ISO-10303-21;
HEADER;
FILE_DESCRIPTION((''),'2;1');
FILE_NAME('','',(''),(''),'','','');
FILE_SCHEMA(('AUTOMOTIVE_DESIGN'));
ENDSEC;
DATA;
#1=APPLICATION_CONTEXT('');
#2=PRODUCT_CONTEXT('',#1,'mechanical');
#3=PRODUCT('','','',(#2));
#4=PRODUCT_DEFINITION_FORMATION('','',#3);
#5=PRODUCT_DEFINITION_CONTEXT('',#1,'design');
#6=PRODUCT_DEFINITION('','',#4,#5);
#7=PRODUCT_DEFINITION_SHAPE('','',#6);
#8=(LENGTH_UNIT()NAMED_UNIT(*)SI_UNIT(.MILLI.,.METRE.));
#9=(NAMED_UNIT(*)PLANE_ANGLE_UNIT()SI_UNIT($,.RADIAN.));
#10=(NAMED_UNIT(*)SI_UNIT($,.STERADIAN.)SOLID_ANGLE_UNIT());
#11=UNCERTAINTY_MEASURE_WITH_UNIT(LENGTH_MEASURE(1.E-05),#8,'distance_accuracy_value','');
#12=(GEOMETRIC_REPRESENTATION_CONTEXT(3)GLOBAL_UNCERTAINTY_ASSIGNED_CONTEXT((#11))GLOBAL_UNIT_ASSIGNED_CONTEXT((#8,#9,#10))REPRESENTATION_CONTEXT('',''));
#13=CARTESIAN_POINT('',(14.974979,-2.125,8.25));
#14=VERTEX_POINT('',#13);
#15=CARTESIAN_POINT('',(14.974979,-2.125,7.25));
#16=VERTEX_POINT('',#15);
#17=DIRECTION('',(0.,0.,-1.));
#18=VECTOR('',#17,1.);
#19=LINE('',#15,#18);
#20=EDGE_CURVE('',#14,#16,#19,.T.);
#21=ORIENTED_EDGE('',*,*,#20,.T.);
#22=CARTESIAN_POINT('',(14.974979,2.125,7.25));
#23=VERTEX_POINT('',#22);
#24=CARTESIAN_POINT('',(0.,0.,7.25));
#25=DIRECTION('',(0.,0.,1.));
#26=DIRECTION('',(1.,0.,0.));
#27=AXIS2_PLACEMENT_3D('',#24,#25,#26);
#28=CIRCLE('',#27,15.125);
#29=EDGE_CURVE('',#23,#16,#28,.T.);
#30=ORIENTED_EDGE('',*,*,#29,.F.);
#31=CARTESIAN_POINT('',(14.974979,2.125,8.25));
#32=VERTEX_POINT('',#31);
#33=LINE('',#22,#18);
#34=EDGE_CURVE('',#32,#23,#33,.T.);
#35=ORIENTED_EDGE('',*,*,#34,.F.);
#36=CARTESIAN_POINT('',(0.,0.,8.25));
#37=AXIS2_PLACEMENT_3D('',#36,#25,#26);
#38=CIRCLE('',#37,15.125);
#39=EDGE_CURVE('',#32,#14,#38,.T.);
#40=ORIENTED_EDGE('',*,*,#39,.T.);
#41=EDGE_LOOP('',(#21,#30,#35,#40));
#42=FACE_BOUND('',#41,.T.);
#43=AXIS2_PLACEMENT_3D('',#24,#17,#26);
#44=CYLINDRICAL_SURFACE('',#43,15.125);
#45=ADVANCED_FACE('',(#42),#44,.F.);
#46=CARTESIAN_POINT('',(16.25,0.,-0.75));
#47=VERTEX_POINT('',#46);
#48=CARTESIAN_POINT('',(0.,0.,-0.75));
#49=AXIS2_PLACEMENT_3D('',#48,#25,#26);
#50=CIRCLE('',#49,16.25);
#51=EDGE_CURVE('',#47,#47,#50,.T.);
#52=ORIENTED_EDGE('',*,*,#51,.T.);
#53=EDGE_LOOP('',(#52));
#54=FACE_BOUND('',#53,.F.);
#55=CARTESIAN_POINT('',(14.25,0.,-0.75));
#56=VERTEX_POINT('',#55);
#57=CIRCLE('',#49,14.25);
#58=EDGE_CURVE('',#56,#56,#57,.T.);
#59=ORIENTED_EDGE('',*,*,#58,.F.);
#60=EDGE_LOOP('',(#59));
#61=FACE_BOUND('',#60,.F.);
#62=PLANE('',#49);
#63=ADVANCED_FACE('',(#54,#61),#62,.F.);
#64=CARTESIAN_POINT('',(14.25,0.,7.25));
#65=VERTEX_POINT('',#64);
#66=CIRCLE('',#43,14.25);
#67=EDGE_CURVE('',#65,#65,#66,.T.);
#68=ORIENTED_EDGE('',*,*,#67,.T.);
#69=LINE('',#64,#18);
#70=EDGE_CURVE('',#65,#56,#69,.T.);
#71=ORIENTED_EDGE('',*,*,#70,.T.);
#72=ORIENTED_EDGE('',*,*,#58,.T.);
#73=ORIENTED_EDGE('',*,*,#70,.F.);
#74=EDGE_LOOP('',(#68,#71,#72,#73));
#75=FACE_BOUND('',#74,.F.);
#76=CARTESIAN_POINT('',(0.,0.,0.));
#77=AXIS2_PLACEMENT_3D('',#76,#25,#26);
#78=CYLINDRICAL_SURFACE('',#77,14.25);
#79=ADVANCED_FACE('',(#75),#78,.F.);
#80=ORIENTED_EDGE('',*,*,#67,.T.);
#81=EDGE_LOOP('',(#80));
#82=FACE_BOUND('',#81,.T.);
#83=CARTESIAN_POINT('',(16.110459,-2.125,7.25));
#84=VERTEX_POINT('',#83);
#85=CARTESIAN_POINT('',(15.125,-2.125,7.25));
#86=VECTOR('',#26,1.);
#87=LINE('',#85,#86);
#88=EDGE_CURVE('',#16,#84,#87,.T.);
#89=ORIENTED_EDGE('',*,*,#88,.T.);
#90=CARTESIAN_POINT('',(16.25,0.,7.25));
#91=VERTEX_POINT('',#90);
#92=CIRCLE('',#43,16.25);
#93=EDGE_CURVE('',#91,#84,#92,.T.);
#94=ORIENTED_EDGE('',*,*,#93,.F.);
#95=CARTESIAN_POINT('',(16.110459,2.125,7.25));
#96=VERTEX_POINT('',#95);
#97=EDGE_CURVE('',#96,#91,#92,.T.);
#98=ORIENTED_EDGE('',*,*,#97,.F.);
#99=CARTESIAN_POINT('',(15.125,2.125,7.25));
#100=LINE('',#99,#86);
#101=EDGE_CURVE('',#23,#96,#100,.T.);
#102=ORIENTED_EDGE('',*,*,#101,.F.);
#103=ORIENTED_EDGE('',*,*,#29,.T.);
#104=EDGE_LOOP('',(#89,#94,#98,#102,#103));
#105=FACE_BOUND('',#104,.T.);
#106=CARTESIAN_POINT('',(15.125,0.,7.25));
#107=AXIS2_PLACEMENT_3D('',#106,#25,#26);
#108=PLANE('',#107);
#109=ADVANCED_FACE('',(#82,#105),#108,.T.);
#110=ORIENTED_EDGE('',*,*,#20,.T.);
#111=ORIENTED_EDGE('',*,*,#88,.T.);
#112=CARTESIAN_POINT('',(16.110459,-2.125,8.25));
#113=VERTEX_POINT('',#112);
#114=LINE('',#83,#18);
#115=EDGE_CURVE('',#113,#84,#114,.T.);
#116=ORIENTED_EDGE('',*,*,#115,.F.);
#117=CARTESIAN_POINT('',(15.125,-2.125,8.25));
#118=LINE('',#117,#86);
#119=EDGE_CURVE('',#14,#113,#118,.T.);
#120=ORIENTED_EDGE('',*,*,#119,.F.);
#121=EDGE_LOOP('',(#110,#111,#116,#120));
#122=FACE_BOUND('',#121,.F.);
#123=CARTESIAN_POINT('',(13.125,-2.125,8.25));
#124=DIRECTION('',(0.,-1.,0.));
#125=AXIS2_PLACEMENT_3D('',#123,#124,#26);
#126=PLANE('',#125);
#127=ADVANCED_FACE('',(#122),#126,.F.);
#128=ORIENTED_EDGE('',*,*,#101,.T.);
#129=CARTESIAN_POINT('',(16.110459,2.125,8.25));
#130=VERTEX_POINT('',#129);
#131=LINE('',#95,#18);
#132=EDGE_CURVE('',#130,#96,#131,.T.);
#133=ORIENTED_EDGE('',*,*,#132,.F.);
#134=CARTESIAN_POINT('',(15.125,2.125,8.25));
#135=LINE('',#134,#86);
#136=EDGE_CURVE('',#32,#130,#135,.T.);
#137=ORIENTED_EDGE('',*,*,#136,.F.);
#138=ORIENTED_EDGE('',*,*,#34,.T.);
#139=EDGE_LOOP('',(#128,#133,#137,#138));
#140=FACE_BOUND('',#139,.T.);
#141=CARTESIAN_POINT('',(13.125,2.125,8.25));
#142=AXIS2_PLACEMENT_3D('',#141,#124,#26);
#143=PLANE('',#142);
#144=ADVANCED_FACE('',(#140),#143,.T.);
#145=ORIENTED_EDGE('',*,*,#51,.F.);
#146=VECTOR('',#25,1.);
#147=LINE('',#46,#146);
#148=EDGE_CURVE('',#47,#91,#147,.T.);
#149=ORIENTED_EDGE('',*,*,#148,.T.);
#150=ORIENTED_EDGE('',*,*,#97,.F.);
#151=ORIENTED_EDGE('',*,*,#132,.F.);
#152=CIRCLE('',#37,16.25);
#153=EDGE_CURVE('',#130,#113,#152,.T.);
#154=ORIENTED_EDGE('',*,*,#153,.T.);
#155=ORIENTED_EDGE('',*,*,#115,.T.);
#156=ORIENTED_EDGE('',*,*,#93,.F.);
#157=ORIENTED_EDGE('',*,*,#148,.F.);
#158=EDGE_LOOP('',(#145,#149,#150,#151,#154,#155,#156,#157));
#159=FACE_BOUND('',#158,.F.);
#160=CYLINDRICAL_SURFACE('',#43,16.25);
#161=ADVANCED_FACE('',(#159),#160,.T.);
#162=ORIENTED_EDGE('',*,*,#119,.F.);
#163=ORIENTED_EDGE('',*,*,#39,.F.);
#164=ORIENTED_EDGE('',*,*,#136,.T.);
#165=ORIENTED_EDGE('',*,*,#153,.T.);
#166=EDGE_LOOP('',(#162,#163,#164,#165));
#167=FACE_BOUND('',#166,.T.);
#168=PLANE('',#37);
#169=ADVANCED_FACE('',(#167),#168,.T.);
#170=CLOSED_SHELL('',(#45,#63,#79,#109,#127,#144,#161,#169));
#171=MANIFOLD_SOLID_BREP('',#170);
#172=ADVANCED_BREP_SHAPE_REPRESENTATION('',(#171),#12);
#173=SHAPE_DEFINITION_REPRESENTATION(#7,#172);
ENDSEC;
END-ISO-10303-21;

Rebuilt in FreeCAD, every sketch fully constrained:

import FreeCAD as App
import Part
import Sketcher
from FreeCAD import Vector

doc = App.newDocument("Part")
body = doc.addObject("PartDesign::Body", "Body")

# Sketch on XY plane
sketch1 = doc.addObject("Sketcher::SketchObject", "Sketch")
body.addObject(sketch1)
sketch1.AttachmentSupport = (doc.XY_Plane, [""])
sketch1.MapMode = "FlatFace"
sketch1.addGeometry([
    Part.Circle(Vector(0, 0, 0), Vector(0, 0, 1), 16),
    Part.Circle(Vector(0, 0, 0), Vector(0, 0, 1), 14),
], False)
sketch1.addConstraint([
    Sketcher.Constraint("Coincident", 0, 3, -1, 1),
    Sketcher.Constraint("Coincident", 1, 3, -1, 1),
    Sketcher.Constraint("Diameter", 0, 32.5),
    Sketcher.Constraint("Diameter", 1, 28.5),
])
pad1 = doc.addObject("PartDesign::Pad", "Pad")
body.addObject(pad1)
pad1.Profile = sketch1
pad1.Type = "TwoLengths"
pad1.Length = 7.25
pad1.Length2 = 0.75

# Sketch on XY plane
sketch2 = doc.addObject("Sketcher::SketchObject", "Sketch001")
body.addObject(sketch2)
sketch2.AttachmentSupport = (doc.XY_Plane, [""])
sketch2.MapMode = "FlatFace"
sketch2.AttachmentOffset = App.Placement(Vector(0, 0, 7.25), App.Rotation())
sketch2.addGeometry([
    Part.Circle(Vector(0, 0, 0), Vector(0, 0, 1), 16),
    Part.Circle(Vector(0, 0, 0), Vector(0, 0, 1), 15),
], False)
sketch2.addConstraint([
    Sketcher.Constraint("Coincident", 0, 3, -1, 1),
    Sketcher.Constraint("Coincident", 1, 3, -1, 1),
    Sketcher.Constraint("Diameter", 0, 32.5),
    Sketcher.Constraint("Diameter", 1, 30.25),
])
pad2 = doc.addObject("PartDesign::Pad", "Pad001")
body.addObject(pad2)
pad2.Profile = sketch2
pad2.Length = 1

# Sketch on XY plane
sketch3 = doc.addObject("Sketcher::SketchObject", "Sketch002")
body.addObject(sketch3)
sketch3.AttachmentSupport = (doc.XY_Plane, [""])
sketch3.MapMode = "FlatFace"
sketch3.AttachmentOffset = App.Placement(Vector(0, 0, 8.25), App.Rotation())
sketch3.addGeometry([
    Part.LineSegment(Vector(13.1, 2.1, 0), Vector(13.1, -2.1, 0)),
    Part.LineSegment(Vector(13.1, -2.1, 0), Vector(17.1, -2.1, 0)),
    Part.LineSegment(Vector(17.1, -2.1, 0), Vector(17.1, 2.1, 0)),
    Part.LineSegment(Vector(17.1, 2.1, 0), Vector(13.1, 2.1, 0)),
], False)
sketch3.addConstraint([
    Sketcher.Constraint("Coincident", 0, 2, 1, 1),
    Sketcher.Constraint("Coincident", 1, 2, 2, 1),
    Sketcher.Constraint("Coincident", 2, 2, 3, 1),
    Sketcher.Constraint("Coincident", 3, 2, 0, 1),
    Sketcher.Constraint("Vertical", 0),
    Sketcher.Constraint("Horizontal", 1),
    Sketcher.Constraint("Vertical", 2),
    Sketcher.Constraint("Horizontal", 3),
    Sketcher.Constraint("DistanceX", 1, 1, 1, 2, 4.0),
    Sketcher.Constraint("DistanceY", 0, 2, 0, 1, 4.25),
    Sketcher.Constraint("DistanceX", -1, 1, 0, 2, 13.125),
    Sketcher.Constraint("DistanceY", 0, 2, -1, 1, 2.125),
])
pocket1 = doc.addObject("PartDesign::Pocket", "Pocket")
body.addObject(pocket1)
pocket1.Profile = sketch3
pocket1.Length = 1

doc.recompute()
